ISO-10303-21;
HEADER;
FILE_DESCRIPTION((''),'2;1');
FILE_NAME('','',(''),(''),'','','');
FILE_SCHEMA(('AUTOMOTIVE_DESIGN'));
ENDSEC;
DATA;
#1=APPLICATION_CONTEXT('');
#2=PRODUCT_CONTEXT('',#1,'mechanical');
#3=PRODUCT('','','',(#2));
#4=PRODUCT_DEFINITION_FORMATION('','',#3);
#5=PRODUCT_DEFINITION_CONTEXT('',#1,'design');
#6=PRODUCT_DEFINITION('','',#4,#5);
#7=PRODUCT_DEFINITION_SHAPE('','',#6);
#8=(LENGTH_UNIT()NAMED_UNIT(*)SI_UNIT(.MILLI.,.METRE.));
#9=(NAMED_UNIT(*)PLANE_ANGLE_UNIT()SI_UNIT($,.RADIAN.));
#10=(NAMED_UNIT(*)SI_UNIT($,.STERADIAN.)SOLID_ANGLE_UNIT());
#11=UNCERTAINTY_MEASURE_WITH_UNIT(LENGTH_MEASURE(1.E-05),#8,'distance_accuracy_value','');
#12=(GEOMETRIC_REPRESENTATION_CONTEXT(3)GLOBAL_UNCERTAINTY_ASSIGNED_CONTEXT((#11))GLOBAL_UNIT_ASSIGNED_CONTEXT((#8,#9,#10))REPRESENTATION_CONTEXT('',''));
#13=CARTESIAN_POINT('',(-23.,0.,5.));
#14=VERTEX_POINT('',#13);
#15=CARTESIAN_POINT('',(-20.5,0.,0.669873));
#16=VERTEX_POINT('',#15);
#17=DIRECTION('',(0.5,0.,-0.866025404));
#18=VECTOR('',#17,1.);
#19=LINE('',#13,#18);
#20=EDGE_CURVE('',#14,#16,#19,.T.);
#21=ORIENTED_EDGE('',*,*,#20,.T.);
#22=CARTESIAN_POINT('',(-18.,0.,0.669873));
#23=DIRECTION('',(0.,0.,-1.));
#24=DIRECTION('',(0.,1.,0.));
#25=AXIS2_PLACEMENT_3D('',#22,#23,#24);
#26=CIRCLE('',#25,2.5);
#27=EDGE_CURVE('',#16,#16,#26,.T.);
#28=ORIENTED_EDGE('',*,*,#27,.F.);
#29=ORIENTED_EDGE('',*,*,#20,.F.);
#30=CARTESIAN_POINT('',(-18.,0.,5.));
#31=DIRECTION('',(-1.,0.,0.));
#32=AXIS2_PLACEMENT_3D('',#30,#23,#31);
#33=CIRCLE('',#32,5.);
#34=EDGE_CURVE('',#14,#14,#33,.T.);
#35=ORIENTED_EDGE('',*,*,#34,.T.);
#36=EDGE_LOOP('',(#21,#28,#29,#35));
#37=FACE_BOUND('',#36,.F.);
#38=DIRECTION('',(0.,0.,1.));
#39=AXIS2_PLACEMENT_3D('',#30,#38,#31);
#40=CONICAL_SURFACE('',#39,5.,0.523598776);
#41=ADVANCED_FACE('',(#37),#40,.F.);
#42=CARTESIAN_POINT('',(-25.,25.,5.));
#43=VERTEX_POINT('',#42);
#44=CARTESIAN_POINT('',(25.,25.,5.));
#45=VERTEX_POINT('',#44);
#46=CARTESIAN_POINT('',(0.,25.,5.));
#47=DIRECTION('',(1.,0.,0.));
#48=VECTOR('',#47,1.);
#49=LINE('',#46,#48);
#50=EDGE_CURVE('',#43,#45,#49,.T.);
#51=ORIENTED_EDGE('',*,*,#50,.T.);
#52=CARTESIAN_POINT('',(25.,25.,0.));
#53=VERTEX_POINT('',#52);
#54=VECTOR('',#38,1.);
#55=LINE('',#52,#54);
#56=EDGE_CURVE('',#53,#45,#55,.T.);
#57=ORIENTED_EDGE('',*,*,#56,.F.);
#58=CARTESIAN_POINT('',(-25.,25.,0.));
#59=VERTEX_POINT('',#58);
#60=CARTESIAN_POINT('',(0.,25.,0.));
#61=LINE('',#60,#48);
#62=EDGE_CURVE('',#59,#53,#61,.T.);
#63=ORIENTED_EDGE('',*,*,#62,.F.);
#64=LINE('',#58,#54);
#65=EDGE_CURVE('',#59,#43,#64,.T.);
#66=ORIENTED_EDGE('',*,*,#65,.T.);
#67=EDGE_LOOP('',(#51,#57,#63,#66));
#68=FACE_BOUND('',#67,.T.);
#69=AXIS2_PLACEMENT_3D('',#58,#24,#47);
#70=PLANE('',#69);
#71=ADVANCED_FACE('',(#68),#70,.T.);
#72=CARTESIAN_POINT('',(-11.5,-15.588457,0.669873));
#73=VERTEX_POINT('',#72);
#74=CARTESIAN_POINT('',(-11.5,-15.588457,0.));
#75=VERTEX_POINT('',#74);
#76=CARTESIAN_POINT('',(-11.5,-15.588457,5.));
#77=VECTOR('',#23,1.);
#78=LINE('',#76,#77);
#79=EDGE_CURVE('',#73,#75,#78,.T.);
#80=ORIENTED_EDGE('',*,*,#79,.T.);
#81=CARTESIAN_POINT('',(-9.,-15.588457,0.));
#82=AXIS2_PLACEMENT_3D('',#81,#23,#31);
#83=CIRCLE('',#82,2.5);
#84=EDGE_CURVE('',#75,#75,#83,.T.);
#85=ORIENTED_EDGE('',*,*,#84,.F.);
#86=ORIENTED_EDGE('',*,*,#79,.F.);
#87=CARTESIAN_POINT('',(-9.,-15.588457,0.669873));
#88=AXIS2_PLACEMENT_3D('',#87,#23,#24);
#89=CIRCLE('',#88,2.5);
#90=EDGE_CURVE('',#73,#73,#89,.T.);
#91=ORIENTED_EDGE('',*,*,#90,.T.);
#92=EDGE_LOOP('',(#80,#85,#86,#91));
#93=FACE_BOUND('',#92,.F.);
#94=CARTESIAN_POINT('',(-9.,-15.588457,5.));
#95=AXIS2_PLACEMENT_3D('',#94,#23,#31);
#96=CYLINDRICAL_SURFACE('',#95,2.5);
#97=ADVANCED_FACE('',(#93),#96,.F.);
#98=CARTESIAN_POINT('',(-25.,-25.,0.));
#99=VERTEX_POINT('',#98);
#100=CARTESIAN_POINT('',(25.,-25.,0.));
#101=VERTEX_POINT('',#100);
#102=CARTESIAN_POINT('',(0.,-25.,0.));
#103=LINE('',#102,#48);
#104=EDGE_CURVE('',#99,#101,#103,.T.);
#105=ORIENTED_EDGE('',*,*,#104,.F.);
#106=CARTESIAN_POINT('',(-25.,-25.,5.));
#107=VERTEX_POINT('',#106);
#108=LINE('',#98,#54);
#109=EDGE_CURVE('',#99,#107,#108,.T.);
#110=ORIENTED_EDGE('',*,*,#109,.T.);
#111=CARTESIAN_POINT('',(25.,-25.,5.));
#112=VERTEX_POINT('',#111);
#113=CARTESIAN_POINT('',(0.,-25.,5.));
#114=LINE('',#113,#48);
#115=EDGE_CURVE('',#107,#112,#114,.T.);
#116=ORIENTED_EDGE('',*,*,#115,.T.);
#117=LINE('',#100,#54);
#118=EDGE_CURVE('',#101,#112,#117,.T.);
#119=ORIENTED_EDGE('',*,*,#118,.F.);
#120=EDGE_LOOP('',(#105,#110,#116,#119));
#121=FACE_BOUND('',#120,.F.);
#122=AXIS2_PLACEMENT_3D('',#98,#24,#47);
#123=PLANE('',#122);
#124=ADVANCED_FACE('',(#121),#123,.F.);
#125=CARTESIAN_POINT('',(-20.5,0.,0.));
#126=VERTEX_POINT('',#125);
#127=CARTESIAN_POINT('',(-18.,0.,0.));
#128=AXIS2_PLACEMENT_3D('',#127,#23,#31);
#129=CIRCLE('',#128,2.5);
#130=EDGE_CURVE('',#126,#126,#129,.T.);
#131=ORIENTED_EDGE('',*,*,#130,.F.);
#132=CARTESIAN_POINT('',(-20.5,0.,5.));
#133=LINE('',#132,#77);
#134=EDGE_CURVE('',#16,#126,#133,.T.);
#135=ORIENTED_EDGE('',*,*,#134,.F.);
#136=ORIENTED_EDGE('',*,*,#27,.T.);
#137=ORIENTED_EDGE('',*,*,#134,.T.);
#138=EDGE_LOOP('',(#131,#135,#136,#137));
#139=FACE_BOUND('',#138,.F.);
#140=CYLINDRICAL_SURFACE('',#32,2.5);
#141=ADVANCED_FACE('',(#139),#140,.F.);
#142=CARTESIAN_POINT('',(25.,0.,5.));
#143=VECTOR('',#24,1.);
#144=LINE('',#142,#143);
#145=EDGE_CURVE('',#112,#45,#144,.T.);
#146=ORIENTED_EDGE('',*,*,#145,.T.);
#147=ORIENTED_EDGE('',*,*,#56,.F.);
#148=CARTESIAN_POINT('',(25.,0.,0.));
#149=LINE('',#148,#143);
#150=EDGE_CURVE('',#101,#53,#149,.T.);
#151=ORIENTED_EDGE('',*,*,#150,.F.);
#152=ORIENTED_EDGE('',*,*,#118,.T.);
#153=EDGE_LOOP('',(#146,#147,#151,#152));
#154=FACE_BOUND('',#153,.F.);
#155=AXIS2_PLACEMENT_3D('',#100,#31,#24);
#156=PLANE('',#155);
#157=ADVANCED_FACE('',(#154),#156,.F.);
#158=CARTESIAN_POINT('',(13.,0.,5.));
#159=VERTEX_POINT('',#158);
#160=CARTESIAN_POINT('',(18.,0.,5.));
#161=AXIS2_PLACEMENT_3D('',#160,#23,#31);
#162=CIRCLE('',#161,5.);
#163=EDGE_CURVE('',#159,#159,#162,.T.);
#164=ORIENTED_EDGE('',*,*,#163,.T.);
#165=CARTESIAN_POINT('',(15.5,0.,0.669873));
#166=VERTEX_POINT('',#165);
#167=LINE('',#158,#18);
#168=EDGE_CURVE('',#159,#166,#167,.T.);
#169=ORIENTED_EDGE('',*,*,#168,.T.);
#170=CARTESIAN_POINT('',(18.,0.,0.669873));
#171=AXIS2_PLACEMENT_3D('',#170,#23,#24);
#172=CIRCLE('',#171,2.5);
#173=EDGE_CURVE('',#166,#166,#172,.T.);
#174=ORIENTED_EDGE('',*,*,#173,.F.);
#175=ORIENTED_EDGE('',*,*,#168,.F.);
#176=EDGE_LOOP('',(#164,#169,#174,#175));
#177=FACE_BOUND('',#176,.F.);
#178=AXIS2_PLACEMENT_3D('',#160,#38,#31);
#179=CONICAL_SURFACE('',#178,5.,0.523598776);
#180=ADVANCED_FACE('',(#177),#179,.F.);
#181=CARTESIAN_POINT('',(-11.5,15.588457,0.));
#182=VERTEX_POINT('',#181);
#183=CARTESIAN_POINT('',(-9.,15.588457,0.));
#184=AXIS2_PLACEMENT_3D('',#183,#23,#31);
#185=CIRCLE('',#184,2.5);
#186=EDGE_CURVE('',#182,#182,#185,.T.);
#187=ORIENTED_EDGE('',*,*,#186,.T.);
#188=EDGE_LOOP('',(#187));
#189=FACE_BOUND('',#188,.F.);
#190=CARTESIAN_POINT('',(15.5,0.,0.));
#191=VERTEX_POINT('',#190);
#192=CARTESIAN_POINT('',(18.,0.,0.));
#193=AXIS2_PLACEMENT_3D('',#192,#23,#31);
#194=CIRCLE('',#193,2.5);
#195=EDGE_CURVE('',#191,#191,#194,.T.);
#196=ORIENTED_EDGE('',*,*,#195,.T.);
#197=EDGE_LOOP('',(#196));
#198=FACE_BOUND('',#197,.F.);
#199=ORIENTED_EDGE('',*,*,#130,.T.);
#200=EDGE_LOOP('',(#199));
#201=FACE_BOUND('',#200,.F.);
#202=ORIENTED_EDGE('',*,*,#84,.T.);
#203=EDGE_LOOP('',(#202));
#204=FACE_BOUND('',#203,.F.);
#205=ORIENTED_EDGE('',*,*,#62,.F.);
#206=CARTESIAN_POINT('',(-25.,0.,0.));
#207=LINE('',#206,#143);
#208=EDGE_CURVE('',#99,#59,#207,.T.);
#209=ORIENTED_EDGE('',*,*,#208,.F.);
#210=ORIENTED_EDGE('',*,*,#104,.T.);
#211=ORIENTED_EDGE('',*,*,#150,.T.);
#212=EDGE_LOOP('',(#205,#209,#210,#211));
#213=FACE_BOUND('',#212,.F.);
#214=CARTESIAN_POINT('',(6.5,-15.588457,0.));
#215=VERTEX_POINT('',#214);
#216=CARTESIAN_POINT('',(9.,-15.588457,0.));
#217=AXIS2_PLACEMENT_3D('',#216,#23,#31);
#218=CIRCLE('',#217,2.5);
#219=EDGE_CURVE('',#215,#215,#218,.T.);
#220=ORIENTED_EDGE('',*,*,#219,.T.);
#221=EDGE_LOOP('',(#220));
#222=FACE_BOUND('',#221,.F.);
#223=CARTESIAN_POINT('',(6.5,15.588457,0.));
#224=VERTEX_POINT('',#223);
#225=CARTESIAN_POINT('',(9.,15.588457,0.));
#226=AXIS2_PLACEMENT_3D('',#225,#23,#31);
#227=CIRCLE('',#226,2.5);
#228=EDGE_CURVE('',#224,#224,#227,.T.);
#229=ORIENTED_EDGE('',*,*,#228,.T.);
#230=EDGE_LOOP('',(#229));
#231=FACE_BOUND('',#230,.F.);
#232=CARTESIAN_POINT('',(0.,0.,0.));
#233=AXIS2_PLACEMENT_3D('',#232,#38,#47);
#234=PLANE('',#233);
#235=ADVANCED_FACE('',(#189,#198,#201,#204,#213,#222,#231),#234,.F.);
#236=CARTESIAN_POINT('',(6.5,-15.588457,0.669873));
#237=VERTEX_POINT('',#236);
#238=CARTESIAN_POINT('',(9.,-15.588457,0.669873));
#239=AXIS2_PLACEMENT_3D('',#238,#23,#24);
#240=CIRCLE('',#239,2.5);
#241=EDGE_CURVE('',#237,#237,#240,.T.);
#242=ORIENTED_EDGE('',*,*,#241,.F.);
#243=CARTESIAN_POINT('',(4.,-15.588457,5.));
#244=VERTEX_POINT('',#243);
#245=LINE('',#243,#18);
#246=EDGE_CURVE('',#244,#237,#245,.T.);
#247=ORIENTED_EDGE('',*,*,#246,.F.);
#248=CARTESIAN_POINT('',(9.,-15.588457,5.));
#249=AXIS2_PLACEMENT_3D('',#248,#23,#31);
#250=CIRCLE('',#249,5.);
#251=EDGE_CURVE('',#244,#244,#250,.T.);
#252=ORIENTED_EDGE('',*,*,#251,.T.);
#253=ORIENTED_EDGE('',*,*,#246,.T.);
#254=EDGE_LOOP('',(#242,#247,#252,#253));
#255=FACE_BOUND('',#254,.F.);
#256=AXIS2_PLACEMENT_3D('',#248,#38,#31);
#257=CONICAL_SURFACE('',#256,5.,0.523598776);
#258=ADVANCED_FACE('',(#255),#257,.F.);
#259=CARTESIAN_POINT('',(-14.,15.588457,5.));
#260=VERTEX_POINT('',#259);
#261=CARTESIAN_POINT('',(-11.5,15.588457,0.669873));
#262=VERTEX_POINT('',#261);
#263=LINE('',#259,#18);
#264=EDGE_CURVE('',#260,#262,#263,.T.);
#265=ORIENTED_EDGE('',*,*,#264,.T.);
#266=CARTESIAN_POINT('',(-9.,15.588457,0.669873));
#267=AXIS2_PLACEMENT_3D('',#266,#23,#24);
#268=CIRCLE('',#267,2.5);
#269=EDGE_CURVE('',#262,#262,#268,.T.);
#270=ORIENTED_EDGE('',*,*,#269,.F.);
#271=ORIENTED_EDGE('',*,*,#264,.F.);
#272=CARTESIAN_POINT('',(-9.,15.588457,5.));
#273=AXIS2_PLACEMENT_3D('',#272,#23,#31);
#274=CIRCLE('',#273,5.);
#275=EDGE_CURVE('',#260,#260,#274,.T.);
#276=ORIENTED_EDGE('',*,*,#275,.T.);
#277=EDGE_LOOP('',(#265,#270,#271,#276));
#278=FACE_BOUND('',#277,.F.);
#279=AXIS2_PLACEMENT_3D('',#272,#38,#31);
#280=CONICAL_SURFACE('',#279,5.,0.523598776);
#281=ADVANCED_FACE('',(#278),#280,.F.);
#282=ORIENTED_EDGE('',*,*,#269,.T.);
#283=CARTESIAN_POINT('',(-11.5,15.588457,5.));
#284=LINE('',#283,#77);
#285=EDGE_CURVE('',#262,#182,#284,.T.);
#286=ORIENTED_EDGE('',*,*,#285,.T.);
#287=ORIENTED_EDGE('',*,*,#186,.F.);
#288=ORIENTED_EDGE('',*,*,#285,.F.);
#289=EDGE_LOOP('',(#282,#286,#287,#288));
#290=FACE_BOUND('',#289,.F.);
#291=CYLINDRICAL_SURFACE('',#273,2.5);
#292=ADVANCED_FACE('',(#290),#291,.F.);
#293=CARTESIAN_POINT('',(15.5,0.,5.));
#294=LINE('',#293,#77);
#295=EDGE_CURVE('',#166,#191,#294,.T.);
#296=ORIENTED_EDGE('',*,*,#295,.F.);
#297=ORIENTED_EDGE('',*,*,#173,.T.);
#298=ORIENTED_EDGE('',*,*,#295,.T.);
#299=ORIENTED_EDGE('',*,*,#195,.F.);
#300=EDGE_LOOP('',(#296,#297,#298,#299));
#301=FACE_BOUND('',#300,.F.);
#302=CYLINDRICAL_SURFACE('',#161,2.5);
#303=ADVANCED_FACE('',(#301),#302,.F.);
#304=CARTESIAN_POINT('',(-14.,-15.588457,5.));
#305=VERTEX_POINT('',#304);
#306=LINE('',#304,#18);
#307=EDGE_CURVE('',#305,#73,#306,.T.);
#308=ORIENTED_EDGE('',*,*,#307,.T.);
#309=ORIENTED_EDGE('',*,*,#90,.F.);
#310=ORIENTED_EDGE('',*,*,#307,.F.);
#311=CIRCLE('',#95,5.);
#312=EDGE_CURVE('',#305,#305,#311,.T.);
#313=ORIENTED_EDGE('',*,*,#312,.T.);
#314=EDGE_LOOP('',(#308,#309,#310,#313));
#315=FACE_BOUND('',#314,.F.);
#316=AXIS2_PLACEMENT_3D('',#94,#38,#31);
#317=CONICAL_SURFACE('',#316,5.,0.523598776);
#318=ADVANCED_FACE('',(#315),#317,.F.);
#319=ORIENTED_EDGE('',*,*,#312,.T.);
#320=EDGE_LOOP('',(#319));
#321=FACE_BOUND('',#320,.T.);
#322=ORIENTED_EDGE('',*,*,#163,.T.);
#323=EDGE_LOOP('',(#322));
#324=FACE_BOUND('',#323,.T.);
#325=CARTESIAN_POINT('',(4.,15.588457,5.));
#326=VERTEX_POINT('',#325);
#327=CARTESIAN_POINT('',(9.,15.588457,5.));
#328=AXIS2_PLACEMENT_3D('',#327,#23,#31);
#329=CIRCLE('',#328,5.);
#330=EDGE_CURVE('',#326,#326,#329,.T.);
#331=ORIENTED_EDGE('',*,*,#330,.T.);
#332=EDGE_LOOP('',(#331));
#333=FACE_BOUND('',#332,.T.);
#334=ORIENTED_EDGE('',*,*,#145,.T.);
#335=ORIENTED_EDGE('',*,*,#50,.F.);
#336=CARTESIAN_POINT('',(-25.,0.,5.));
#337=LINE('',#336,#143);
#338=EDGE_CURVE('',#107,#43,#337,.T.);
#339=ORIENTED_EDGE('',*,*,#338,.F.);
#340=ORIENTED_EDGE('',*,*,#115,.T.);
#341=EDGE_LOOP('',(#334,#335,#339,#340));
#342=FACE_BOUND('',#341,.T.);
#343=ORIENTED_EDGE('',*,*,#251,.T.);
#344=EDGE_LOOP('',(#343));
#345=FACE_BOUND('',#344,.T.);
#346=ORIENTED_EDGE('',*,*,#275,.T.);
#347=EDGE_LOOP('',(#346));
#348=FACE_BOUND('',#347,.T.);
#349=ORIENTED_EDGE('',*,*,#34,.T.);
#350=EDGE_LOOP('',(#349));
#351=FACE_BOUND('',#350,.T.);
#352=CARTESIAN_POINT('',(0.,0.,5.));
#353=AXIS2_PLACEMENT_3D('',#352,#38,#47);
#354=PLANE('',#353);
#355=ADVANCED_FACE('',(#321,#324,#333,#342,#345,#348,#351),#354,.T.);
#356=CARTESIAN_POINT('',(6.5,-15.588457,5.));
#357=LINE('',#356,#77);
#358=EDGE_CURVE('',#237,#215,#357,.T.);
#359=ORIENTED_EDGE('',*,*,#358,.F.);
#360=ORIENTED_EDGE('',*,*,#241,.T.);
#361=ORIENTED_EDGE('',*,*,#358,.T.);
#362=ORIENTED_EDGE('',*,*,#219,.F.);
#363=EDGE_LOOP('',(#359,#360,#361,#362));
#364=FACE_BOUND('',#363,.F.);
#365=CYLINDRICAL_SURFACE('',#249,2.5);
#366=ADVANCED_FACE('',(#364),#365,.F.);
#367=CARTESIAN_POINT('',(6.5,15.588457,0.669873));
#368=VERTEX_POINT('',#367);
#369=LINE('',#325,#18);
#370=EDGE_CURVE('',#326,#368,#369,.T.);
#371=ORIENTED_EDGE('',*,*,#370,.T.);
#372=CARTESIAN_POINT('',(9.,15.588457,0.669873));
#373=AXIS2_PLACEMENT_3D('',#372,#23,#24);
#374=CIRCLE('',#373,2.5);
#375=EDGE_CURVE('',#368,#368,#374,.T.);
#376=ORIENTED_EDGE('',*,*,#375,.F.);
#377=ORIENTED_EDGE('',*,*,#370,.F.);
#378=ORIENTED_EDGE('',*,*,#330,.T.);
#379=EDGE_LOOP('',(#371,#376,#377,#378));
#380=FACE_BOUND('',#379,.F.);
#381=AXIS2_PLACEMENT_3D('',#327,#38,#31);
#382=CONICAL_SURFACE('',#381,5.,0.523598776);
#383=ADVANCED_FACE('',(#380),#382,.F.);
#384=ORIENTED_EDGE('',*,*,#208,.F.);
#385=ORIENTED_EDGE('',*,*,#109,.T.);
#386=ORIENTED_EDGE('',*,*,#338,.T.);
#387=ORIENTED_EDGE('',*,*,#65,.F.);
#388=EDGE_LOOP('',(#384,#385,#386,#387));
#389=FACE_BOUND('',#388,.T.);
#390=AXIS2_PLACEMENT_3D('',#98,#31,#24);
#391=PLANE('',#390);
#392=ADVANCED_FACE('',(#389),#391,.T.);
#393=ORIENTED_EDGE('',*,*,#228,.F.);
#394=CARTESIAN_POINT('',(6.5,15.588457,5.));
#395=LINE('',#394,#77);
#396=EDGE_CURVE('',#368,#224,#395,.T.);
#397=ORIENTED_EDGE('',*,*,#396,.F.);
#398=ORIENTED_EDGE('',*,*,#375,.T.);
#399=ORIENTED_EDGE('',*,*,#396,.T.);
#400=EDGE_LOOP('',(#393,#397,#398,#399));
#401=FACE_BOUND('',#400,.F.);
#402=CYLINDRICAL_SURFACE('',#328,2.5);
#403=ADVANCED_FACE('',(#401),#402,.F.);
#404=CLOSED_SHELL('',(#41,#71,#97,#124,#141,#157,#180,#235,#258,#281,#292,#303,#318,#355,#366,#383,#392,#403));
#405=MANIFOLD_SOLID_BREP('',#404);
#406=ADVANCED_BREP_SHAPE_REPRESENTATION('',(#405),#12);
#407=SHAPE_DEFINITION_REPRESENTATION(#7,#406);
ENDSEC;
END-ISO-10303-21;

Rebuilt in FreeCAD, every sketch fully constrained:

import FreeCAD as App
import Part
import Sketcher
from FreeCAD import Vector

doc = App.newDocument("Part")
body = doc.addObject("PartDesign::Body", "Body")

sketch1 = doc.addObject("Sketcher::SketchObject", "Sketch")
body.addObject(sketch1)
sketch1.AttachmentSupport = (doc.XY_Plane, [""])
sketch1.MapMode = "FlatFace"
sketch1.addGeometry([
    Part.LineSegment(Vector(-25, 25, 0), Vector(-25, -25, 0)),
    Part.LineSegment(Vector(-25, -25, 0), Vector(25, -25, 0)),
    Part.LineSegment(Vector(25, -25, 0), Vector(25, 25, 0)),
    Part.LineSegment(Vector(25, 25, 0), Vector(-25, 25, 0)),
], False)
sketch1.addConstraint([
    Sketcher.Constraint("Coincident", 0, 2, 1, 1),
    Sketcher.Constraint("Coincident", 1, 2, 2, 1),
    Sketcher.Constraint("Coincident", 2, 2, 3, 1),
    Sketcher.Constraint("Coincident", 3, 2, 0, 1),
    Sketcher.Constraint("Vertical", 0),
    Sketcher.Constraint("Horizontal", 1),
    Sketcher.Constraint("Vertical", 2),
    Sketcher.Constraint("Horizontal", 3),
    Sketcher.Constraint("Symmetric", 0, 2, 2, 2, -1, 1),
    Sketcher.Constraint("Equal", 3, 0),
    Sketcher.Constraint("DistanceX", 1, 1, 1, 2, 50.0),
])
pad1 = doc.addObject("PartDesign::Pad", "Pad")
body.addObject(pad1)
pad1.Profile = sketch1
pad1.Length = 5

sketch2 = doc.addObject("Sketcher::SketchObject", "Sketch001")
body.addObject(sketch2)
sketch2.AttachmentSupport = (doc.XY_Plane, [""])
sketch2.MapMode = "FlatFace"
sketch2.AttachmentOffset = App.Placement(Vector(0, 0, 5), App.Rotation())
sketch2.addGeometry([
    Part.Circle(Vector(9, 15.588457, 0), Vector(0, 0, 1), 2.5),
    Part.Circle(Vector(18, 0, 0), Vector(0, 0, 1), 2.5),
    Part.Circle(Vector(9, -15.588457, 0), Vector(0, 0, 1), 2.5),
    Part.Circle(Vector(-9, -15.588457, 0), Vector(0, 0, 1), 2.5),
    Part.Circle(Vector(-18, 0, 0), Vector(0, 0, 1), 2.5),
    Part.Circle(Vector(-9, 15.588457, 0), Vector(0, 0, 1), 2.5),
], False)
sketch2.addConstraint([
    Sketcher.Constraint("Equal", 0, 1),
    Sketcher.Constraint("Equal", 1, 2),
    Sketcher.Constraint("Equal", 2, 3),
    Sketcher.Constraint("Equal", 3, 4),
    Sketcher.Constraint("Equal", 4, 5),
    Sketcher.Constraint("Symmetric", 0, 3, 3, 3, -1, 1),
    Sketcher.Constraint("Symmetric", 1, 3, 4, 3, -1, 1),
    Sketcher.Constraint("Symmetric", 2, 3, 5, 3, -1, 1),
    Sketcher.Constraint("Symmetric", 2, 3, 3, 3, -2),
    Sketcher.Constraint("PointOnObject", 1, 3, -1),
    Sketcher.Constraint("Diameter", 0, 5.0),
    Sketcher.Constraint("DistanceX", -1, 1, 0, 3, 9.0),
    Sketcher.Constraint("DistanceX", -1, 1, 1, 3, 18.0),
    Sketcher.Constraint("DistanceY", -1, 1, 0, 3, 15.588457),
])
doc.recompute()
hole = doc.addObject("PartDesign::Hole", "Hole")
body.addObject(hole)
hole.Profile = sketch2
hole.ThreadType = "None"
hole.Diameter = 5
hole.DepthType = "Dimension"
hole.Depth = 12
hole.DrillPoint = "Flat"
hole.HoleCutType = "Countersink"
hole.HoleCutDiameter = 10
hole.HoleCutCountersinkAngle = 60

doc.recompute()
